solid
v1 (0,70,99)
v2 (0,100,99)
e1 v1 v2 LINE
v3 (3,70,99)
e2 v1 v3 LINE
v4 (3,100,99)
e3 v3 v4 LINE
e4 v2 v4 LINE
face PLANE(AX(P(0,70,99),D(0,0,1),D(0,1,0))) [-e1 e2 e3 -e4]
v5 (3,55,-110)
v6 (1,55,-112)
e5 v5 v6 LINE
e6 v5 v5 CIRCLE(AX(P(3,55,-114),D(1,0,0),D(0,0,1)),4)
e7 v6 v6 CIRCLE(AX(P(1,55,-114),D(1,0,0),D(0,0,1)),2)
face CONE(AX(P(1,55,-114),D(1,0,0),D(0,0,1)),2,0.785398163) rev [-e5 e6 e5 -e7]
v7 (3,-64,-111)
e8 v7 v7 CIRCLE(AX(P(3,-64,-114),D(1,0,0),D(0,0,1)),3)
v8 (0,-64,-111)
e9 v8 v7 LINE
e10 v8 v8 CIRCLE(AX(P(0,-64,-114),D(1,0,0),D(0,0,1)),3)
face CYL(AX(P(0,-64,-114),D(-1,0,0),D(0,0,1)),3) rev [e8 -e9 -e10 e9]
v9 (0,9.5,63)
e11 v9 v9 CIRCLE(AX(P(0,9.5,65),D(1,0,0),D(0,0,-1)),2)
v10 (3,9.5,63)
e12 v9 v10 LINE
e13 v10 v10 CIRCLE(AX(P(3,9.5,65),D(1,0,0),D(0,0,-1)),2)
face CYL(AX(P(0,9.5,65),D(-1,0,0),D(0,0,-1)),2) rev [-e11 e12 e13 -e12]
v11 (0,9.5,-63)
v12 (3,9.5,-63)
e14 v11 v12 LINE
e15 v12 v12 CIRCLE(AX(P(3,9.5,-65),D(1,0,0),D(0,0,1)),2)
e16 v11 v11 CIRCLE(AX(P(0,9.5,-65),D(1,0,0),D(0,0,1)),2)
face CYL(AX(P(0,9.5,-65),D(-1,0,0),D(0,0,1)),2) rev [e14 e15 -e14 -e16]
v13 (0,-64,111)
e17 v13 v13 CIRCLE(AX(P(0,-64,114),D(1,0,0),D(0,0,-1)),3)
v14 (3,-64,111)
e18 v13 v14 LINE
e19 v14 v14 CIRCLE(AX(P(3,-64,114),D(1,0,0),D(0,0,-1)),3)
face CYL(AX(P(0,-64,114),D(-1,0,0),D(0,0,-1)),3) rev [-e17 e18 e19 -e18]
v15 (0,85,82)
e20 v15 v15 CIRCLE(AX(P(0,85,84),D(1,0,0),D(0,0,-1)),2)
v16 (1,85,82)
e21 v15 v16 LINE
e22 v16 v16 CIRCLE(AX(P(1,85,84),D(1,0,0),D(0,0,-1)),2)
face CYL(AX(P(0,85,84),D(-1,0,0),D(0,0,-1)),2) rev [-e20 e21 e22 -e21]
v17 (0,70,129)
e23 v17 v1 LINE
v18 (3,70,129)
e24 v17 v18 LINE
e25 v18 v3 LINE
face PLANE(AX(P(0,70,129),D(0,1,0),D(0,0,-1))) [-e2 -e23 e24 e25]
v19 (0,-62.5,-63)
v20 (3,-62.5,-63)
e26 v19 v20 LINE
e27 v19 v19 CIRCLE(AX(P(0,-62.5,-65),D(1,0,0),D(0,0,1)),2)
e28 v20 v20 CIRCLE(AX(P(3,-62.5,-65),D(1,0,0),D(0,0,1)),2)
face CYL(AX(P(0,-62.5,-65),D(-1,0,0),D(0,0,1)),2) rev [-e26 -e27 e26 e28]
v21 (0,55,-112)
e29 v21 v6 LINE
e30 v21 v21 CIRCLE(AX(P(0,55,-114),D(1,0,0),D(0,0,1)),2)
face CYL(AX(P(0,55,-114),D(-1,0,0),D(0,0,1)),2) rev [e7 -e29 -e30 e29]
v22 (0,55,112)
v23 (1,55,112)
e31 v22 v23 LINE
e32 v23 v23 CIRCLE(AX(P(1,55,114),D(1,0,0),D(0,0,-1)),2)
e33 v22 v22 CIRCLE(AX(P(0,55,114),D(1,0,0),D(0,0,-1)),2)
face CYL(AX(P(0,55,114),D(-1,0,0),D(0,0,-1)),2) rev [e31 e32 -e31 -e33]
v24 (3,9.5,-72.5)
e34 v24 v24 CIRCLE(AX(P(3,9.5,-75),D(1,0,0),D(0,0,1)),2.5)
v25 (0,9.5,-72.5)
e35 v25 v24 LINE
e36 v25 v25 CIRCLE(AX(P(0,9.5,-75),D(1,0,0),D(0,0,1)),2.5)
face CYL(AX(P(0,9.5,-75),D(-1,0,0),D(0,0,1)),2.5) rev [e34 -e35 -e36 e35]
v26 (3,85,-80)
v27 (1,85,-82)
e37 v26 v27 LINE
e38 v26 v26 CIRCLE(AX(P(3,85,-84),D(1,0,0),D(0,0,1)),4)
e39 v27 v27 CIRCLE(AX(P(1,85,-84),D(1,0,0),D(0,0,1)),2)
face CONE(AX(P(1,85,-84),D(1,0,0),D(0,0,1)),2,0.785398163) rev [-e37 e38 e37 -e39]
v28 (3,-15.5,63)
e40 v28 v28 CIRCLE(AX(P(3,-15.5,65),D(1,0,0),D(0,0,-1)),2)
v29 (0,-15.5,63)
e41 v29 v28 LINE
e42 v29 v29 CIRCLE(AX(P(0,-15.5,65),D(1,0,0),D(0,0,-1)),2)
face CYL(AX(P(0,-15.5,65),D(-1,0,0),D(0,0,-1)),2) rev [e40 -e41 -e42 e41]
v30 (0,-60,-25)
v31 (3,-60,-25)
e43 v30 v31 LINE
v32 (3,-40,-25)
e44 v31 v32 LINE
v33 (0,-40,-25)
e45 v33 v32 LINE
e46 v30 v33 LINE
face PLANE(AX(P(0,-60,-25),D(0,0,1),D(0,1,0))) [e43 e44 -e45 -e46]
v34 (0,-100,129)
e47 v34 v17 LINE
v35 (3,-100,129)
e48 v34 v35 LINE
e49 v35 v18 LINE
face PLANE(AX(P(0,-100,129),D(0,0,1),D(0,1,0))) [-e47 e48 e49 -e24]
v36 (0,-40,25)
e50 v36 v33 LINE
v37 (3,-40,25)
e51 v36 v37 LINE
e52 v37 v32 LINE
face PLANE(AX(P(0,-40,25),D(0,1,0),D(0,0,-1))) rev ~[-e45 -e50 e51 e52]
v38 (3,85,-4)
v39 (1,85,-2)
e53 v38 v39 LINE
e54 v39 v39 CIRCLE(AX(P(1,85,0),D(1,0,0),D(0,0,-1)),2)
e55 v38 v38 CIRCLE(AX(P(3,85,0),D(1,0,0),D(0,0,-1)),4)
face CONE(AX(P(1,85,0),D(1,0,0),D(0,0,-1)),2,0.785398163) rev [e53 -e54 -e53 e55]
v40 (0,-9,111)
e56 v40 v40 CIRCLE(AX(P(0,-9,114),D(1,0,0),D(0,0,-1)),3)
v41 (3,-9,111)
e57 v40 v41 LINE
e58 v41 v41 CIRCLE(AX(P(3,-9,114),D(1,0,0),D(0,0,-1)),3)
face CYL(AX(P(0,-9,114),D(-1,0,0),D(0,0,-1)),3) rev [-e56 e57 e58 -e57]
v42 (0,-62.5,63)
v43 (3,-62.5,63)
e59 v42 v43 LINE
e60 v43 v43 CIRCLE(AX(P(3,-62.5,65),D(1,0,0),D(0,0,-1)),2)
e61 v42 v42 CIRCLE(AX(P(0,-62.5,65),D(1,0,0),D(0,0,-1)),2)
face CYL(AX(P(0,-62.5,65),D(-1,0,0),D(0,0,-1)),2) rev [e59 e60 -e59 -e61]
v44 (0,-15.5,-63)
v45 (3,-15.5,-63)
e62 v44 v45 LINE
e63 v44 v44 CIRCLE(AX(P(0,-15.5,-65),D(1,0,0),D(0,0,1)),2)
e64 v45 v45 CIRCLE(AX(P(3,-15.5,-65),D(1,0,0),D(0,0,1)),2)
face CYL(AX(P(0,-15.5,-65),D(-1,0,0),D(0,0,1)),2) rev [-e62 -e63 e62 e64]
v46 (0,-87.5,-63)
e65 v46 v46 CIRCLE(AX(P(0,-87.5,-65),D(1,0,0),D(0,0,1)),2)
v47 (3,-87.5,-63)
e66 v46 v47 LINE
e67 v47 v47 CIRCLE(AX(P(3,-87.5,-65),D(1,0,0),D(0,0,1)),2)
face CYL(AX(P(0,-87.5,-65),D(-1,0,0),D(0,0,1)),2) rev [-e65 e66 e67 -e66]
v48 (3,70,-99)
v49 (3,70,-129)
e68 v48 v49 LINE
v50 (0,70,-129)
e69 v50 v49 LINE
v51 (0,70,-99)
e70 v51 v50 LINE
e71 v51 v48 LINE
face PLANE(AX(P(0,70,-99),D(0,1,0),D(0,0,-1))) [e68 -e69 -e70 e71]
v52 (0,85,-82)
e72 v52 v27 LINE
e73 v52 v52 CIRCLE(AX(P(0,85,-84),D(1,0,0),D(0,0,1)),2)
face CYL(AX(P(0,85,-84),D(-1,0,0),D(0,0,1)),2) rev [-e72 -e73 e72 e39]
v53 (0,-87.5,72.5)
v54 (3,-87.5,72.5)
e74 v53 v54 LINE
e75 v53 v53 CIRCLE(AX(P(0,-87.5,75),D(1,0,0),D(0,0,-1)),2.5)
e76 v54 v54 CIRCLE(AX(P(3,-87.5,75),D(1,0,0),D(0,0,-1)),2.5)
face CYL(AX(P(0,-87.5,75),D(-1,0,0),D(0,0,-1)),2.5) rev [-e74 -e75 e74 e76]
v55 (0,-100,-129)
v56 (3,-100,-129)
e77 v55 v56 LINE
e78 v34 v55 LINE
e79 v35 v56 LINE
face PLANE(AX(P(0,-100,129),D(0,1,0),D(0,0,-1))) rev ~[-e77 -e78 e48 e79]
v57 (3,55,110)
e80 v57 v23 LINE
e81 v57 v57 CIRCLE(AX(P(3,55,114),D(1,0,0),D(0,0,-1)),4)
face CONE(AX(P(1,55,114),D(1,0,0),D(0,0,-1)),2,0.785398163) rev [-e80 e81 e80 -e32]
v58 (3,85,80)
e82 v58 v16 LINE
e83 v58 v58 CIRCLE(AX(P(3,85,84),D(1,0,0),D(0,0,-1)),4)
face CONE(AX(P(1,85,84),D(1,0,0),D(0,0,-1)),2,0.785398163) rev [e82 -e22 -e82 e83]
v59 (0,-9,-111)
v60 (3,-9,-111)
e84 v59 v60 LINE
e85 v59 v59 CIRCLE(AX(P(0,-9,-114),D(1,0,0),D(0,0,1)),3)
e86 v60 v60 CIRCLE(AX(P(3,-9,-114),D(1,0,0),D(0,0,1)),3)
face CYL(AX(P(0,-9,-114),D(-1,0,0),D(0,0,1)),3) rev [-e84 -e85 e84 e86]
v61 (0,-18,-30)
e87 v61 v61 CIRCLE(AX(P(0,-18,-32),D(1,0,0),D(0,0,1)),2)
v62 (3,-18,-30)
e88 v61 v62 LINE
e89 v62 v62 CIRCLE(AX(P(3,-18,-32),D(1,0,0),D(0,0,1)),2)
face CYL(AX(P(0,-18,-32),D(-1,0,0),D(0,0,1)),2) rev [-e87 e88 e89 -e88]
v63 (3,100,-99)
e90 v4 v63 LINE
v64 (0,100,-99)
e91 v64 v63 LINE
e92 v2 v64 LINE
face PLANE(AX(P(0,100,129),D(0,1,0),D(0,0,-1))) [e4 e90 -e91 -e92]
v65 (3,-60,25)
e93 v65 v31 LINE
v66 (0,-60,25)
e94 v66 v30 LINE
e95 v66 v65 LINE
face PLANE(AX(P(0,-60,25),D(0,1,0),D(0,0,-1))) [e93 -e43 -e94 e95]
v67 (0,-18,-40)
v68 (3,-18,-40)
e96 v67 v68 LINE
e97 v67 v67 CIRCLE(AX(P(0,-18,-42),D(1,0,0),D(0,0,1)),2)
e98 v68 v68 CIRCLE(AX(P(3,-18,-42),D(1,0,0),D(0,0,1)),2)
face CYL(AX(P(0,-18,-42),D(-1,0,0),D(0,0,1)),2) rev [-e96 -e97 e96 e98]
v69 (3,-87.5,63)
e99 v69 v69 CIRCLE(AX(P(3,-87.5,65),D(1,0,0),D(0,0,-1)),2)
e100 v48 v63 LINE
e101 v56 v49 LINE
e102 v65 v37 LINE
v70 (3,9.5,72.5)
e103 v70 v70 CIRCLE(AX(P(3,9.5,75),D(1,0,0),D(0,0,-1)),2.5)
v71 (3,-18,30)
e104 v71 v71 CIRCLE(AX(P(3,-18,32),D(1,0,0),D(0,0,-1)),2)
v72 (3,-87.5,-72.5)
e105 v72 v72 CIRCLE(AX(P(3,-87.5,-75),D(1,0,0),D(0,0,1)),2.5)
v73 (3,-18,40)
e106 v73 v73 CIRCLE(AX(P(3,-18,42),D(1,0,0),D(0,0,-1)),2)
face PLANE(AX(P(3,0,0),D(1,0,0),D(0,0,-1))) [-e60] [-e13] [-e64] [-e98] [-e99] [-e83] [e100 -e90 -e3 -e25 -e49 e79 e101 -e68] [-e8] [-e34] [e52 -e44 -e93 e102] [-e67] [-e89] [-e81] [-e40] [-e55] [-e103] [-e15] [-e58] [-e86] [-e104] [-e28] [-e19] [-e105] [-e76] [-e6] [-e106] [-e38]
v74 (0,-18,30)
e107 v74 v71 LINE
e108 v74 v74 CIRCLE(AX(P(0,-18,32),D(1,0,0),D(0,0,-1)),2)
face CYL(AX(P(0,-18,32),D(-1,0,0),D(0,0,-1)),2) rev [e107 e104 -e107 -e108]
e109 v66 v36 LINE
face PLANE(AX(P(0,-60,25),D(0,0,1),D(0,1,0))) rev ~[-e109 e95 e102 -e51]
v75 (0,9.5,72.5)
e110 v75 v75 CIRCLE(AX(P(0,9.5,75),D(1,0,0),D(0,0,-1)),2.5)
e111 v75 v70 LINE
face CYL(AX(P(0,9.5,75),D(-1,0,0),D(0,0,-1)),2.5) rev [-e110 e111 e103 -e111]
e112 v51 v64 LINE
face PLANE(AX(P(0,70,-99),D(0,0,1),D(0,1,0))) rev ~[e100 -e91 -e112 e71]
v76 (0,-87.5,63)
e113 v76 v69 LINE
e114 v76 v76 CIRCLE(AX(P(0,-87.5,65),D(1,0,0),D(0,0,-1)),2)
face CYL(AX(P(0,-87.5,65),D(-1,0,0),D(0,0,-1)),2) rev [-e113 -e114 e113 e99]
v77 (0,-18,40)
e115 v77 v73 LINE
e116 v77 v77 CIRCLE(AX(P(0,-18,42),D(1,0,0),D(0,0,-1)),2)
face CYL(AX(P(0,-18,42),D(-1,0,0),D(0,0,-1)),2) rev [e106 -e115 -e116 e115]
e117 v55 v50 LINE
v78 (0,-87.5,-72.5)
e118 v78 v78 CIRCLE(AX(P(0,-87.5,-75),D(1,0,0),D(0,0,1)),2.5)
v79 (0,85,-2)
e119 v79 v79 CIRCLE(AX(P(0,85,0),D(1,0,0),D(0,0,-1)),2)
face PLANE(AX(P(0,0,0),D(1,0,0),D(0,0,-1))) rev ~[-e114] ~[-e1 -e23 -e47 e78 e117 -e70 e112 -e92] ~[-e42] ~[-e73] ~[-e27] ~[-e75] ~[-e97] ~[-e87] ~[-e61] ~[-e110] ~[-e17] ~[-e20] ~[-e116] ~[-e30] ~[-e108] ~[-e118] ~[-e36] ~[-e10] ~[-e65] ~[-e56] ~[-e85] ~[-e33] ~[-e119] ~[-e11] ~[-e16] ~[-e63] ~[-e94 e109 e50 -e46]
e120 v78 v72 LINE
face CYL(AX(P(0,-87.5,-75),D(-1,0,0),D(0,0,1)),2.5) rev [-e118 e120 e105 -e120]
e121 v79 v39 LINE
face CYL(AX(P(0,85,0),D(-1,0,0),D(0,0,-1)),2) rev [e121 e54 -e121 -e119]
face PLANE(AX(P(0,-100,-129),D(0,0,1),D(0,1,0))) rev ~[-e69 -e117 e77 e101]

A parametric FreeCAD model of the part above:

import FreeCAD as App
import Part
import Sketcher
from FreeCAD import Vector


def edges_at(feature, points):
    """Names of the edges that pass closest to the given points."""
    edges = feature.Shape.Edges
    near = lambda p: min(range(len(edges)), key=lambda i: edges[i].distToShape(Part.Vertex(*p))[0])
    return sorted({f"Edge{near(p) + 1}" for p in points})


def add_polygon(sketch, points):
    """Adds a closed chain of lines whose ends are joined by coincident constraints."""
    first, n = sketch.GeometryCount, len(points)
    for a, b in zip(points, points[1:] + points[:1]):
        sketch.addGeometry(Part.LineSegment(App.Vector(*a, 0), App.Vector(*b, 0)), False)
    for i in range(n):
        sketch.addConstraint(Sketcher.Constraint("Coincident", first + i, 2, first + (i + 1) % n, 1))

doc = App.newDocument("Part")
body = doc.addObject("PartDesign::Body", "Body")

# Sketch on YZ plane
sketch1 = body.newObject("Sketcher::SketchObject", "Sketch")
sketch1.AttachmentSupport = (doc.getObject("YZ_Plane"), [""])
sketch1.MapMode = "FlatFace"
add_polygon(sketch1, [(100, 129), (-100, 129), (-100, -129), (100, -129)])  # lines 0-3
sketch1.addConstraint([
    Sketcher.Constraint("Horizontal", 0),
    Sketcher.Constraint("Vertical", 1),
    Sketcher.Constraint("Horizontal", 2),
    Sketcher.Constraint("Vertical", 3),
    Sketcher.Constraint("Symmetric", 0, 2, 2, 2, -1, 1),
    Sketcher.Constraint("DistanceX", 0, 2, 0, 1, 200.0),
    Sketcher.Constraint("DistanceY", 1, 2, 1, 1, 258.0),
])
pad1 = body.newObject("PartDesign::Pad", "Pad")
pad1.Profile = sketch1
pad1.Length = 3

# Sketch on YZ plane
sketch2 = body.newObject("Sketcher::SketchObject", "Sketch001")
sketch2.AttachmentSupport = (doc.getObject("YZ_Plane"), [""])
sketch2.MapMode = "FlatFace"
sketch2.addGeometry(Part.Circle(Vector(-9, 114, 0), Vector(0, 0, 1), 3), False)  # 0
sketch2.addGeometry(Part.Circle(Vector(-64, 114, 0), Vector(0, 0, 1), 3), False)  # 1
sketch2.addGeometry(Part.Circle(Vector(-64, -114, 0), Vector(0, 0, 1), 3), False)  # 2
sketch2.addGeometry(Part.Circle(Vector(-9, -114, 0), Vector(0, 0, 1), 3), False)  # 3
sketch2.addGeometry(Part.Circle(Vector(-18, 32, 0), Vector(0, 0, 1), 2), False)  # 4
sketch2.addGeometry(Part.Circle(Vector(-18, -32, 0), Vector(0, 0, 1), 2), False)  # 5
sketch2.addGeometry(Part.Circle(Vector(-18, 42, 0), Vector(0, 0, 1), 2), False)  # 6
sketch2.addGeometry(Part.Circle(Vector(-18, -42, 0), Vector(0, 0, 1), 2), False)  # 7
sketch2.addGeometry(Part.Circle(Vector(-87.5, 75, 0), Vector(0, 0, 1), 2.5), False)  # 8
sketch2.addGeometry(Part.Circle(Vector(9.5, 75, 0), Vector(0, 0, 1), 2.5), False)  # 9
sketch2.addGeometry(Part.Circle(Vector(-87.5, -75, 0), Vector(0, 0, 1), 2.5), False)  # 10
sketch2.addGeometry(Part.Circle(Vector(9.5, -75, 0), Vector(0, 0, 1), 2.5), False)  # 11
sketch2.addGeometry(Part.Circle(Vector(9.5, 65, 0), Vector(0, 0, 1), 2), False)  # 12
sketch2.addGeometry(Part.Circle(Vector(-15.5, 65, 0), Vector(0, 0, 1), 2), False)  # 13
sketch2.addGeometry(Part.Circle(Vector(-62.5, 65, 0), Vector(0, 0, 1), 2), False)  # 14
sketch2.addGeometry(Part.Circle(Vector(-87.5, 65, 0), Vector(0, 0, 1), 2), False)  # 15
sketch2.addGeometry(Part.Circle(Vector(-87.5, -65, 0), Vector(0, 0, 1), 2), False)  # 16
sketch2.addGeometry(Part.Circle(Vector(-62.5, -65, 0), Vector(0, 0, 1), 2), False)  # 17
sketch2.addGeometry(Part.Circle(Vector(-15.5, -65, 0), Vector(0, 0, 1), 2), False)  # 18
sketch2.addGeometry(Part.Circle(Vector(9.5, -65, 0), Vector(0, 0, 1), 2), False)  # 19
sketch2.addGeometry(Part.Circle(Vector(55, 114, 0), Vector(0, 0, 1), 2), False)  # 20
sketch2.addGeometry(Part.Circle(Vector(85, 84, 0), Vector(0, 0, 1), 2), False)  # 21
sketch2.addGeometry(Part.Circle(Vector(85, 0, 0), Vector(0, 0, 1), 2), False)  # 22
sketch2.addGeometry(Part.Circle(Vector(85, -84, 0), Vector(0, 0, 1), 2), False)  # 23
sketch2.addGeometry(Part.Circle(Vector(55, -114, 0), Vector(0, 0, 1), 2), False)  # 24
add_polygon(sketch2, [(100, -99), (70, -99), (70, -129), (100, -129)])  # lines 25-28
add_polygon(sketch2, [(100, 129), (70, 129), (70, 99), (100, 99)])  # lines 29-32
add_polygon(sketch2, [(-40, 25), (-60, 25), (-60, -25), (-40, -25)])  # lines 33-36
sketch2.addConstraint([
    Sketcher.Constraint("Horizontal", 25),
    Sketcher.Constraint("Vertical", 26),
    Sketcher.Constraint("Horizontal", 27),
    Sketcher.Constraint("Vertical", 28),
    Sketcher.Constraint("Horizontal", 29),
    Sketcher.Constraint("Vertical", 30),
    Sketcher.Constraint("Horizontal", 31),
    Sketcher.Constraint("Vertical", 32),
    Sketcher.Constraint("Horizontal", 33),
    Sketcher.Constraint("Vertical", 34),
    Sketcher.Constraint("Horizontal", 35),
    Sketcher.Constraint("Vertical", 36),
    Sketcher.Constraint("Equal", 0, 1),
    Sketcher.Constraint("Equal", 1, 2),
    Sketcher.Constraint("Equal", 2, 3),
    Sketcher.Constraint("Equal", 4, 5),
    Sketcher.Constraint("Equal", 5, 6),
    Sketcher.Constraint("Equal", 6, 7),
    Sketcher.Constraint("Equal", 8, 9),
    Sketcher.Constraint("Equal", 9, 10),
    Sketcher.Constraint("Equal", 10, 11),
    Sketcher.Constraint("Equal", 7, 12),
    Sketcher.Constraint("Equal", 12, 13),
    Sketcher.Constraint("Equal", 13, 14),
    Sketcher.Constraint("Equal", 14, 15),
    Sketcher.Constraint("Equal", 15, 16),
    Sketcher.Constraint("Equal", 16, 17),
    Sketcher.Constraint("Equal", 17, 18),
    Sketcher.Constraint("Equal", 18, 19),
    Sketcher.Constraint("Equal", 19, 20),
    Sketcher.Constraint("Equal", 20, 21),
    Sketcher.Constraint("Equal", 21, 22),
    Sketcher.Constraint("Equal", 22, 23),
    Sketcher.Constraint("Equal", 23, 24),
    Sketcher.Constraint("Symmetric", 1, 3, 2, 3, -1),
    Sketcher.Constraint("Symmetric", 0, 3, 3, 3, -1),
    Sketcher.Constraint("Symmetric", 4, 3, 5, 3, -1),
    Sketcher.Constraint("Symmetric", 6, 3, 7, 3, -1),
    Sketcher.Constraint("Symmetric", 8, 3, 10, 3, -1),
    Sketcher.Constraint("Symmetric", 9, 3, 11, 3, -1),
    Sketcher.Constraint("Symmetric", 15, 3, 16, 3, -1),
    Sketcher.Constraint("Symmetric", 14, 3, 17, 3, -1),
    Sketcher.Constraint("Symmetric", 13, 3, 18, 3, -1),
    Sketcher.Constraint("Symmetric", 12, 3, 19, 3, -1),
    Sketcher.Constraint("Symmetric", 21, 3, 23, 3, -1),
    Sketcher.Constraint("Symmetric", 20, 3, 24, 3, -1),
    Sketcher.Constraint("Symmetric", 26, 2, 29, 2, -1),
    Sketcher.Constraint("Symmetric", 28, 2, 31, 2, -1),
    Sketcher.Constraint("PointOnObject", 22, 3, -1),
    Sketcher.Constraint("Horizontal", 0, 3, 1, 3),
    Sketcher.Constraint("Horizontal", 8, 3, 9, 3),
    Sketcher.Constraint("Horizontal", 12, 3, 13, 3),
    Sketcher.Constraint("Horizontal", 13, 3, 14, 3),
    Sketcher.Constraint("Horizontal", 14, 3, 15, 3),
    Sketcher.Constraint("Horizontal", 1, 3, 20, 3),
    Sketcher.Constraint("Vertical", 5, 3, 6, 3),
    Sketcher.Constraint("Vertical", 11, 3, 12, 3),
    Sketcher.Constraint("Vertical", 10, 3, 15, 3),
    Sketcher.Constraint("Vertical", 21, 3, 22, 3),
    Sketcher.Constraint("Equal", 31, 26),
    Sketcher.Constraint("Diameter", 0, 6.0),
    Sketcher.Constraint("Diameter", 4, 4.0),
    Sketcher.Constraint("Diameter", 8, 5.0),
    Sketcher.Constraint("DistanceX", 25, 2, 25, 1, 30.0),
    Sketcher.Constraint("DistanceX", 33, 2, 33, 1, 20.0),
    Sketcher.Constraint("DistanceY", 34, 2, 34, 1, 50.0),
    Sketcher.Constraint("DistanceX", 0, 3, -1, 1, 9.0),
    Sketcher.Constraint("DistanceY", -1, 1, 0, 3, 114.0),
    Sketcher.Constraint("DistanceX", 1, 3, -1, 1, 64.0),
    Sketcher.Constraint("DistanceX", 4, 3, -1, 1, 18.0),
    Sketcher.Constraint("DistanceY", -1, 1, 4, 3, 32.0),
    Sketcher.Constraint("DistanceY", -1, 1, 6, 3, 42.0),
    Sketcher.Constraint("DistanceY", -1, 1, 8, 3, 75.0),
    Sketcher.Constraint("DistanceY", -1, 1, 12, 3, 65.0),
    Sketcher.Constraint("DistanceX", -1, 1, 20, 3, 55.0),
    Sketcher.Constraint("DistanceX", -1, 1, 21, 3, 85.0),
    Sketcher.Constraint("DistanceY", -1, 1, 21, 3, 84.0),
    Sketcher.Constraint("DistanceX", -1, 1, 25, 2, 70.0),
    Sketcher.Constraint("DistanceY", 25, 2, -1, 1, 99.0),
    Sketcher.Constraint("DistanceX", 33, 2, -1, 1, 60.0),
    Sketcher.Constraint("DistanceY", -1, 1, 33, 2, 25.0),
    Sketcher.Constraint("DistanceX", 8, 3, 9, 3, 97.0),
    Sketcher.Constraint("DistanceX", 13, 3, 12, 3, 25.0),
    Sketcher.Constraint("DistanceX", 8, 3, 14, 3, 25.0),
    Sketcher.Constraint("DistanceX", 8, 3, -1, 1, 87.5),
])
pocket1 = body.newObject("PartDesign::Pocket", "Pocket")
pocket1.Profile = sketch2
pocket1.Length = 3
pocket1.Reversed = True
doc.recompute()

chamfer = body.newObject("PartDesign::Chamfer", "Chamfer")
chamfer.Base = (pocket1, edges_at(pocket1, [
    (3, 85, 86),
    (3, 85, 2),
    (3, 55, 116),
    (3, 55, -116),
    (3, 85, -86),
]))
chamfer.Size = 2

doc.recompute()
